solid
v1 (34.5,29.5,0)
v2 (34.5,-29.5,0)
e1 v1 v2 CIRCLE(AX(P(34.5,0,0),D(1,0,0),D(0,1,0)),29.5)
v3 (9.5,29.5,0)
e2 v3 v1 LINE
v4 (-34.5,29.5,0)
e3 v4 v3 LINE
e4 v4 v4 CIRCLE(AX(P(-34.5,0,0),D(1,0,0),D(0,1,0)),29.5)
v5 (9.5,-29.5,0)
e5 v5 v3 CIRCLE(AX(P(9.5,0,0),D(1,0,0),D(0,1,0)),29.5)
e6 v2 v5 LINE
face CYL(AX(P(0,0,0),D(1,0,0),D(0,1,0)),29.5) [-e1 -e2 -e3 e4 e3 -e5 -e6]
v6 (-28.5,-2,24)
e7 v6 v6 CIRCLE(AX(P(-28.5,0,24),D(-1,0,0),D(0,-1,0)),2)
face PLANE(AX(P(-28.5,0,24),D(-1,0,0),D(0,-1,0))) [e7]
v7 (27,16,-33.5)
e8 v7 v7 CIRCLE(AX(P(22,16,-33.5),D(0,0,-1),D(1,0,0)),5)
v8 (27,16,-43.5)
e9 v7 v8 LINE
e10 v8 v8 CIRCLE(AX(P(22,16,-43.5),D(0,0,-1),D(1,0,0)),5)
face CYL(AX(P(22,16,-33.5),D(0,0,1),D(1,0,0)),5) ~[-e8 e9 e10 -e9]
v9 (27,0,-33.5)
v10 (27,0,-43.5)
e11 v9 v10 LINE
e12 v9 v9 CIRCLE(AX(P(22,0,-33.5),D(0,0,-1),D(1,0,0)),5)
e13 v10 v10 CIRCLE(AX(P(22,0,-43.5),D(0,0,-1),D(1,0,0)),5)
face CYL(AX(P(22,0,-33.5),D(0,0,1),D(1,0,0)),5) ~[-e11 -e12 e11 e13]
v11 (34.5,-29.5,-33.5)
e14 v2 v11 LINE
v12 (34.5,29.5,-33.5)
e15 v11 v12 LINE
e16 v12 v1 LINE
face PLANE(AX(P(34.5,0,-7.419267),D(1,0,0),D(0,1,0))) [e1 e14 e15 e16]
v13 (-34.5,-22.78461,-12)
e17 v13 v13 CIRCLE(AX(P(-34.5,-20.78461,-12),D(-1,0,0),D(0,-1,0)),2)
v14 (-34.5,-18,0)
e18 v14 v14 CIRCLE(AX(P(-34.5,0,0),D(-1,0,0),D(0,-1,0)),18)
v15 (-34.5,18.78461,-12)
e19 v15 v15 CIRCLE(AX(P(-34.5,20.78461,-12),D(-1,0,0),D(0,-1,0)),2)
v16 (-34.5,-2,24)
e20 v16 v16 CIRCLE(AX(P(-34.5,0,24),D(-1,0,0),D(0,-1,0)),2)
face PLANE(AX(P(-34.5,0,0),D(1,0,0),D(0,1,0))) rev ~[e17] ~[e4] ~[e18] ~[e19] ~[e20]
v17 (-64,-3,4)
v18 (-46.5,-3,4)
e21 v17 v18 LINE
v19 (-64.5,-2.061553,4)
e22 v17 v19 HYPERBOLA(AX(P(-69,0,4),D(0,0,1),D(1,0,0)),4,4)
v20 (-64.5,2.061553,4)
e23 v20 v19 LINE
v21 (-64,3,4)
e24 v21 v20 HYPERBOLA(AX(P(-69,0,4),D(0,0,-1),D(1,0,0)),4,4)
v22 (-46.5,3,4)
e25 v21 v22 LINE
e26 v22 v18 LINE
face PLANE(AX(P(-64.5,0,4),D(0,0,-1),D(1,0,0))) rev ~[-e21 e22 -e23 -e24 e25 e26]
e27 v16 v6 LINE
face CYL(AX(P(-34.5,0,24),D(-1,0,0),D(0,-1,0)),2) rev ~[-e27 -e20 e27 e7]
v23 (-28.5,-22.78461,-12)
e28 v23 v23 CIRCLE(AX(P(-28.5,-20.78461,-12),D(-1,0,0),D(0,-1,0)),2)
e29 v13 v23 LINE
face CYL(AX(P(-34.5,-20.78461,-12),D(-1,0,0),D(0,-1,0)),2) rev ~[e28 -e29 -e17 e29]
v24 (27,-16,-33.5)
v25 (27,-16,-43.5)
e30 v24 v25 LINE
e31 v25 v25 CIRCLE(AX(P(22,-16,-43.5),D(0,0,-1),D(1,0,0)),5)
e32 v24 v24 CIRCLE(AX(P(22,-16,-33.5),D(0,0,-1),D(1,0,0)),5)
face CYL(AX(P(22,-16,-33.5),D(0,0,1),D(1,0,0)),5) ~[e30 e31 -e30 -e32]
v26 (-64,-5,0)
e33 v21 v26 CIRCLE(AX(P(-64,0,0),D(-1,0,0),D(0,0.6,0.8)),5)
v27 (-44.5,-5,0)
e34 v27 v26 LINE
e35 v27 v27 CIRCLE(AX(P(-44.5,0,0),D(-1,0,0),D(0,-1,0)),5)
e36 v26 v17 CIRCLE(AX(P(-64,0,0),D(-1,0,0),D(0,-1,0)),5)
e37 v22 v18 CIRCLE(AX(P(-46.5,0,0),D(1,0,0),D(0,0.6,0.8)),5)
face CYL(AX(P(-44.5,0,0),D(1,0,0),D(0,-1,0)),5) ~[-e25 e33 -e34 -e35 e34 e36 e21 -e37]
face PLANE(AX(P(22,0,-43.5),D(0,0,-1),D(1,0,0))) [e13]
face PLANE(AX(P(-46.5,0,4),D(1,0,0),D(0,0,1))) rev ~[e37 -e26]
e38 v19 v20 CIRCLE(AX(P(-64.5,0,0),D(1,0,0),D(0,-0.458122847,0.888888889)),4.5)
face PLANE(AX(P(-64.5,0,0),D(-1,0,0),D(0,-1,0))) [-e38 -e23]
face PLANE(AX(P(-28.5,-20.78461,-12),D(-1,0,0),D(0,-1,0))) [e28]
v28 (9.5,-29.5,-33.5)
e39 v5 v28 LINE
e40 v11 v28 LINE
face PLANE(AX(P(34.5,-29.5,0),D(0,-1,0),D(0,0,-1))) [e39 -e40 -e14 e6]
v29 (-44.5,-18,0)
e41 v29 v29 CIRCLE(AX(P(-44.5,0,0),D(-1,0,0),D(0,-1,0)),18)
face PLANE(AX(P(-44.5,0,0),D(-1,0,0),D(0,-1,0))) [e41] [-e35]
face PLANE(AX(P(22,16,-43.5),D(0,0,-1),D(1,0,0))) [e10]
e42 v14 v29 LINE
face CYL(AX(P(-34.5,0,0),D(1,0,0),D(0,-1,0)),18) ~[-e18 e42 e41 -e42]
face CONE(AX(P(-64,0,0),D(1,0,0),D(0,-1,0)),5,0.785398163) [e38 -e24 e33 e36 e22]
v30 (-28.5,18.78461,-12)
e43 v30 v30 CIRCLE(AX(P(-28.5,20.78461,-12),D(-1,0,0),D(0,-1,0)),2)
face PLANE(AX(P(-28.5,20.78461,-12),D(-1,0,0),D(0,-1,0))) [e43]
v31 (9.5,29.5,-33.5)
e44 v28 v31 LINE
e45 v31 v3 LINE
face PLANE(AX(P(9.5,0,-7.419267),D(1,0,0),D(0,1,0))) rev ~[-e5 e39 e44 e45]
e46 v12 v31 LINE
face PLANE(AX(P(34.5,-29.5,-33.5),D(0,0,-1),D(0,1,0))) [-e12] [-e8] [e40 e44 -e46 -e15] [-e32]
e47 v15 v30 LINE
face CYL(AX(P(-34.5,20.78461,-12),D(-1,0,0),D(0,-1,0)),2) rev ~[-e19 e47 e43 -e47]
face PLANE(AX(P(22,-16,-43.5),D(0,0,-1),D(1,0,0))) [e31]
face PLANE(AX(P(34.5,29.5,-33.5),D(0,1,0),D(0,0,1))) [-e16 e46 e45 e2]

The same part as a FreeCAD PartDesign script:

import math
import FreeCAD as App
import Part
import Sketcher
from FreeCAD import Vector
Q = App.Units.Quantity


def edges_at(feature, points):
    """Names of the edges that pass closest to the given points."""
    edges = feature.Shape.Edges
    near = lambda p: min(range(len(edges)), key=lambda i: edges[i].distToShape(Part.Vertex(*p))[0])
    return sorted({f"Edge{near(p) + 1}" for p in points})

doc = App.newDocument("Part")
params = doc.addObject("Spreadsheet::Sheet", "Params")
for row, (alias, value) in enumerate([
    ("sketch1_diameter", "59 mm"),
    ("pad1_length", "69 mm"),
    ("sketch2_diameter", "36 mm"),
    ("pad2_length", "10 mm"),
    ("sketch3_diameter", "10 mm"),
    ("pad3_length", "20 mm"),
    ("sketch4_radius", "29.5 mm"),
    ("sketch4_height", "33.5 mm"),
    ("pad4_length", "25 mm"),
    ("sketch5_diameter", "10 mm"),
    ("pad5_length", "10 mm"),
    ("sketch6_diameter", "4 mm"),
    ("pocket1_length", "6 mm"),
    ("sketch7_width", "18 mm"),
    ("sketch7_height", "1 mm"),
    ("pocket2_length", "25 mm"),
    ("chamfer_size", "0.5 mm"),
], start=1):
    params.set(f"A{row}", alias)
    params.set(f"B{row}", "=" + value)
    params.setAlias(f"B{row}", alias)

body = doc.addObject("PartDesign::Body", "Body")

# Sketch on YZ plane
sketch1 = doc.addObject("Sketcher::SketchObject", "Sketch")
body.addObject(sketch1)
sketch1.AttachmentSupport = (doc.YZ_Plane, [""])
sketch1.MapMode = "FlatFace"
sketch1.addGeometry(Part.Circle(Vector(0, 0, 0), Vector(0, 0, 1), 29.5), False)
sketch1.addConstraint([
    Sketcher.Constraint("Coincident", 0, 3, -1, 1),
    Sketcher.Constraint("Diameter", 0, Q("59 mm")),
])
sketch1.setExpression("Constraints[1]", "Params.sketch1_diameter")
pad1 = doc.addObject("PartDesign::Pad", "Pad")
body.addObject(pad1)
pad1.Profile = sketch1
pad1.setExpression("Length", "Params.pad1_length")
pad1.Midplane = True

# Sketch on YZ plane
sketch2 = doc.addObject("Sketcher::SketchObject", "Sketch001")
body.addObject(sketch2)
sketch2.AttachmentSupport = (doc.YZ_Plane, [""])
sketch2.MapMode = "FlatFace"
sketch2.AttachmentOffset = App.Placement(Vector(0, 0, -34.5), App.Rotation())
sketch2.addGeometry(Part.Circle(Vector(0, 0, 0), Vector(0, 0, 1), 18), False)
sketch2.addConstraint([
    Sketcher.Constraint("Coincident", 0, 3, -1, 1),
    Sketcher.Constraint("Diameter", 0, Q("36 mm")),
])
sketch2.setExpression("Constraints[1]", "Params.sketch2_diameter")
pad2 = doc.addObject("PartDesign::Pad", "Pad001")
body.addObject(pad2)
pad2.Profile = sketch2
pad2.setExpression("Length", "Params.pad2_length")
pad2.Reversed = True

# Sketch on YZ plane
sketch3 = doc.addObject("Sketcher::SketchObject", "Sketch002")
body.addObject(sketch3)
sketch3.AttachmentSupport = (doc.YZ_Plane, [""])
sketch3.MapMode = "FlatFace"
sketch3.AttachmentOffset = App.Placement(Vector(0, 0, -44.5), App.Rotation())
sketch3.addGeometry(Part.Circle(Vector(0, 0, 0), Vector(0, 0, 1), 5), False)
sketch3.addConstraint([
    Sketcher.Constraint("Coincident", 0, 3, -1, 1),
    Sketcher.Constraint("Diameter", 0, Q("10 mm")),
])
sketch3.setExpression("Constraints[1]", "Params.sketch3_diameter")
pad3 = doc.addObject("PartDesign::Pad", "Pad002")
body.addObject(pad3)
pad3.Profile = sketch3
pad3.setExpression("Length", "Params.pad3_length")
pad3.Reversed = True

# Sketch on YZ plane
sketch4 = doc.addObject("Sketcher::SketchObject", "Sketch003")
body.addObject(sketch4)
sketch4.AttachmentSupport = (doc.YZ_Plane, [""])
sketch4.MapMode = "FlatFace"
sketch4.AttachmentOffset = App.Placement(Vector(0, 0, 34.5), App.Rotation())
sketch4.addGeometry([
    Part.LineSegment(Vector(29.5, -33.5, 0), Vector(29.5, 0, 0)),
    Part.ArcOfCircle(Part.Circle(Vector(0, 0, 0), Vector(0, 0, 1), 29.5), math.radians(0), math.radians(180)),
    Part.LineSegment(Vector(-29.5, 0, 0), Vector(-29.5, -33.5, 0)),
    Part.LineSegment(Vector(-29.5, -33.5, 0), Vector(29.5, -33.5, 0)),
], False)
sketch4.addConstraint([
    Sketcher.Constraint("Tangent", 0, 2, 1, 1),
    Sketcher.Constraint("Tangent", 1, 2, 2, 1),
    Sketcher.Constraint("Coincident", 2, 2, 3, 1),
    Sketcher.Constraint("Coincident", 3, 2, 0, 1),
    Sketcher.Constraint("Vertical", 0),
    Sketcher.Constraint("Vertical", 2),
    Sketcher.Constraint("Horizontal", 3),
    Sketcher.Constraint("Coincident", 1, 3, -1, 1),
    Sketcher.Constraint("Radius", 1, Q("29.5 mm")),
    Sketcher.Constraint("DistanceY", 0, 1, 0, 2, Q("33.5 mm")),
])
sketch4.setExpression("Constraints[8]", "Params.sketch4_radius")
sketch4.setExpression("Constraints[9]", "Params.sketch4_height")
pad4 = doc.addObject("PartDesign::Pad", "Pad003")
body.addObject(pad4)
pad4.Profile = sketch4
pad4.setExpression("Length", "Params.pad4_length")
pad4.Reversed = True

# Sketch on XY plane
sketch5 = doc.addObject("Sketcher::SketchObject", "Sketch004")
body.addObject(sketch5)
sketch5.AttachmentSupport = (doc.XY_Plane, [""])
sketch5.MapMode = "FlatFace"
sketch5.AttachmentOffset = App.Placement(Vector(0, 0, -33.5), App.Rotation())
sketch5.addGeometry([
    Part.Circle(Vector(22, -16, 0), Vector(0, 0, 1), 5),
    Part.Circle(Vector(22, 0, 0), Vector(0, 0, 1), 5),
    Part.Circle(Vector(22, 16, 0), Vector(0, 0, 1), 5),
], False)
sketch5.addConstraint([
    Sketcher.Constraint("Equal", 0, 1),
    Sketcher.Constraint("Equal", 1, 2),
    Sketcher.Constraint("Symmetric", 0, 3, 2, 3, -1),
    Sketcher.Constraint("PointOnObject", 1, 3, -1),
    Sketcher.Constraint("Vertical", 0, 3, 1, 3),
    Sketcher.Constraint("Diameter", 0, Q("10 mm")),
    Sketcher.Constraint("DistanceX", -1, 1, 0, 3, Q("22 mm")),
    Sketcher.Constraint("DistanceY", 0, 3, -1, 1, Q("16 mm")),
])
sketch5.setExpression("Constraints[5]", "Params.sketch5_diameter")
pad5 = doc.addObject("PartDesign::Pad", "Pad004")
body.addObject(pad5)
pad5.Profile = sketch5
pad5.setExpression("Length", "Params.pad5_length")
pad5.Reversed = True

# Sketch on YZ plane
sketch6 = doc.addObject("Sketcher::SketchObject", "Sketch005")
body.addObject(sketch6)
sketch6.AttachmentSupport = (doc.YZ_Plane, [""])
sketch6.MapMode = "FlatFace"
sketch6.AttachmentOffset = App.Placement(Vector(0, 0, -34.5), App.Rotation())
sketch6.addGeometry([
    Part.Circle(Vector(20.78461, -12, 0), Vector(0, 0, 1), 2),
    Part.Circle(Vector(0, 24, 0), Vector(0, 0, 1), 2),
    Part.Circle(Vector(-20.78461, -12, 0), Vector(0, 0, 1), 2),
], False)
sketch6.addConstraint([
    Sketcher.Constraint("Equal", 0, 1),
    Sketcher.Constraint("Equal", 1, 2),
    Sketcher.Constraint("Symmetric", 0, 3, 2, 3, -2),
    Sketcher.Constraint("PointOnObject", 1, 3, -2),
    Sketcher.Constraint("Diameter", 0, Q("4 mm")),
    Sketcher.Constraint("DistanceY", 0, 3, -1, 1, Q("12 mm")),
    Sketcher.Constraint("DistanceY", -1, 1, 1, 3, Q("24 mm")),
    Sketcher.Constraint("DistanceX", -1, 1, 0, 3, Q("20.78461 mm")),
])
sketch6.setExpression("Constraints[4]", "Params.sketch6_diameter")
pocket1 = doc.addObject("PartDesign::Pocket", "Pocket")
body.addObject(pocket1)
pocket1.Profile = sketch6
pocket1.setExpression("Length", "Params.pocket1_length")
pocket1.Reversed = True

# Sketch on XZ plane
sketch7 = doc.addObject("Sketcher::SketchObject", "Sketch006")
body.addObject(sketch7)
sketch7.AttachmentSupport = (doc.XZ_Plane, [""])
sketch7.MapMode = "FlatFace"
sketch7.addGeometry([
    Part.LineSegment(Vector(-64.5, 5, 0), Vector(-64.5, 4, 0)),
    Part.LineSegment(Vector(-64.5, 4, 0), Vector(-46.5, 4, 0)),
    Part.LineSegment(Vector(-46.5, 4, 0), Vector(-46.5, 5, 0)),
    Part.LineSegment(Vector(-46.5, 5, 0), Vector(-64.5, 5, 0)),
], False)
sketch7.addConstraint([
    Sketcher.Constraint("Coincident", 0, 2, 1, 1),
    Sketcher.Constraint("Coincident", 1, 2, 2, 1),
    Sketcher.Constraint("Coincident", 2, 2, 3, 1),
    Sketcher.Constraint("Coincident", 3, 2, 0, 1),
    Sketcher.Constraint("Vertical", 0),
    Sketcher.Constraint("Horizontal", 1),
    Sketcher.Constraint("Vertical", 2),
    Sketcher.Constraint("Horizontal", 3),
    Sketcher.Constraint("DistanceX", 1, 1, 1, 2, Q("18 mm")),
    Sketcher.Constraint("DistanceY", 0, 2, 0, 1, Q("1 mm")),
    Sketcher.Constraint("DistanceY", -1, 1, 0, 2, Q("4 mm")),
    Sketcher.Constraint("DistanceX", 0, 2, -1, 1, Q("64.5 mm")),
])
sketch7.setExpression("Constraints[8]", "Params.sketch7_width")
sketch7.setExpression("Constraints[9]", "Params.sketch7_height")
pocket2 = doc.addObject("PartDesign::Pocket", "Pocket001")
body.addObject(pocket2)
pocket2.Profile = sketch7
pocket2.setExpression("Length", "Params.pocket2_length")
pocket2.Midplane = True
doc.recompute()

chamfer = doc.addObject("PartDesign::Chamfer", "Chamfer")
body.addObject(chamfer)
chamfer.Base = (pocket2, edges_at(pocket2, [(-64.5, 2.236, -4.472)]))
chamfer.setExpression("Size", "Params.chamfer_size")

doc.recompute()
